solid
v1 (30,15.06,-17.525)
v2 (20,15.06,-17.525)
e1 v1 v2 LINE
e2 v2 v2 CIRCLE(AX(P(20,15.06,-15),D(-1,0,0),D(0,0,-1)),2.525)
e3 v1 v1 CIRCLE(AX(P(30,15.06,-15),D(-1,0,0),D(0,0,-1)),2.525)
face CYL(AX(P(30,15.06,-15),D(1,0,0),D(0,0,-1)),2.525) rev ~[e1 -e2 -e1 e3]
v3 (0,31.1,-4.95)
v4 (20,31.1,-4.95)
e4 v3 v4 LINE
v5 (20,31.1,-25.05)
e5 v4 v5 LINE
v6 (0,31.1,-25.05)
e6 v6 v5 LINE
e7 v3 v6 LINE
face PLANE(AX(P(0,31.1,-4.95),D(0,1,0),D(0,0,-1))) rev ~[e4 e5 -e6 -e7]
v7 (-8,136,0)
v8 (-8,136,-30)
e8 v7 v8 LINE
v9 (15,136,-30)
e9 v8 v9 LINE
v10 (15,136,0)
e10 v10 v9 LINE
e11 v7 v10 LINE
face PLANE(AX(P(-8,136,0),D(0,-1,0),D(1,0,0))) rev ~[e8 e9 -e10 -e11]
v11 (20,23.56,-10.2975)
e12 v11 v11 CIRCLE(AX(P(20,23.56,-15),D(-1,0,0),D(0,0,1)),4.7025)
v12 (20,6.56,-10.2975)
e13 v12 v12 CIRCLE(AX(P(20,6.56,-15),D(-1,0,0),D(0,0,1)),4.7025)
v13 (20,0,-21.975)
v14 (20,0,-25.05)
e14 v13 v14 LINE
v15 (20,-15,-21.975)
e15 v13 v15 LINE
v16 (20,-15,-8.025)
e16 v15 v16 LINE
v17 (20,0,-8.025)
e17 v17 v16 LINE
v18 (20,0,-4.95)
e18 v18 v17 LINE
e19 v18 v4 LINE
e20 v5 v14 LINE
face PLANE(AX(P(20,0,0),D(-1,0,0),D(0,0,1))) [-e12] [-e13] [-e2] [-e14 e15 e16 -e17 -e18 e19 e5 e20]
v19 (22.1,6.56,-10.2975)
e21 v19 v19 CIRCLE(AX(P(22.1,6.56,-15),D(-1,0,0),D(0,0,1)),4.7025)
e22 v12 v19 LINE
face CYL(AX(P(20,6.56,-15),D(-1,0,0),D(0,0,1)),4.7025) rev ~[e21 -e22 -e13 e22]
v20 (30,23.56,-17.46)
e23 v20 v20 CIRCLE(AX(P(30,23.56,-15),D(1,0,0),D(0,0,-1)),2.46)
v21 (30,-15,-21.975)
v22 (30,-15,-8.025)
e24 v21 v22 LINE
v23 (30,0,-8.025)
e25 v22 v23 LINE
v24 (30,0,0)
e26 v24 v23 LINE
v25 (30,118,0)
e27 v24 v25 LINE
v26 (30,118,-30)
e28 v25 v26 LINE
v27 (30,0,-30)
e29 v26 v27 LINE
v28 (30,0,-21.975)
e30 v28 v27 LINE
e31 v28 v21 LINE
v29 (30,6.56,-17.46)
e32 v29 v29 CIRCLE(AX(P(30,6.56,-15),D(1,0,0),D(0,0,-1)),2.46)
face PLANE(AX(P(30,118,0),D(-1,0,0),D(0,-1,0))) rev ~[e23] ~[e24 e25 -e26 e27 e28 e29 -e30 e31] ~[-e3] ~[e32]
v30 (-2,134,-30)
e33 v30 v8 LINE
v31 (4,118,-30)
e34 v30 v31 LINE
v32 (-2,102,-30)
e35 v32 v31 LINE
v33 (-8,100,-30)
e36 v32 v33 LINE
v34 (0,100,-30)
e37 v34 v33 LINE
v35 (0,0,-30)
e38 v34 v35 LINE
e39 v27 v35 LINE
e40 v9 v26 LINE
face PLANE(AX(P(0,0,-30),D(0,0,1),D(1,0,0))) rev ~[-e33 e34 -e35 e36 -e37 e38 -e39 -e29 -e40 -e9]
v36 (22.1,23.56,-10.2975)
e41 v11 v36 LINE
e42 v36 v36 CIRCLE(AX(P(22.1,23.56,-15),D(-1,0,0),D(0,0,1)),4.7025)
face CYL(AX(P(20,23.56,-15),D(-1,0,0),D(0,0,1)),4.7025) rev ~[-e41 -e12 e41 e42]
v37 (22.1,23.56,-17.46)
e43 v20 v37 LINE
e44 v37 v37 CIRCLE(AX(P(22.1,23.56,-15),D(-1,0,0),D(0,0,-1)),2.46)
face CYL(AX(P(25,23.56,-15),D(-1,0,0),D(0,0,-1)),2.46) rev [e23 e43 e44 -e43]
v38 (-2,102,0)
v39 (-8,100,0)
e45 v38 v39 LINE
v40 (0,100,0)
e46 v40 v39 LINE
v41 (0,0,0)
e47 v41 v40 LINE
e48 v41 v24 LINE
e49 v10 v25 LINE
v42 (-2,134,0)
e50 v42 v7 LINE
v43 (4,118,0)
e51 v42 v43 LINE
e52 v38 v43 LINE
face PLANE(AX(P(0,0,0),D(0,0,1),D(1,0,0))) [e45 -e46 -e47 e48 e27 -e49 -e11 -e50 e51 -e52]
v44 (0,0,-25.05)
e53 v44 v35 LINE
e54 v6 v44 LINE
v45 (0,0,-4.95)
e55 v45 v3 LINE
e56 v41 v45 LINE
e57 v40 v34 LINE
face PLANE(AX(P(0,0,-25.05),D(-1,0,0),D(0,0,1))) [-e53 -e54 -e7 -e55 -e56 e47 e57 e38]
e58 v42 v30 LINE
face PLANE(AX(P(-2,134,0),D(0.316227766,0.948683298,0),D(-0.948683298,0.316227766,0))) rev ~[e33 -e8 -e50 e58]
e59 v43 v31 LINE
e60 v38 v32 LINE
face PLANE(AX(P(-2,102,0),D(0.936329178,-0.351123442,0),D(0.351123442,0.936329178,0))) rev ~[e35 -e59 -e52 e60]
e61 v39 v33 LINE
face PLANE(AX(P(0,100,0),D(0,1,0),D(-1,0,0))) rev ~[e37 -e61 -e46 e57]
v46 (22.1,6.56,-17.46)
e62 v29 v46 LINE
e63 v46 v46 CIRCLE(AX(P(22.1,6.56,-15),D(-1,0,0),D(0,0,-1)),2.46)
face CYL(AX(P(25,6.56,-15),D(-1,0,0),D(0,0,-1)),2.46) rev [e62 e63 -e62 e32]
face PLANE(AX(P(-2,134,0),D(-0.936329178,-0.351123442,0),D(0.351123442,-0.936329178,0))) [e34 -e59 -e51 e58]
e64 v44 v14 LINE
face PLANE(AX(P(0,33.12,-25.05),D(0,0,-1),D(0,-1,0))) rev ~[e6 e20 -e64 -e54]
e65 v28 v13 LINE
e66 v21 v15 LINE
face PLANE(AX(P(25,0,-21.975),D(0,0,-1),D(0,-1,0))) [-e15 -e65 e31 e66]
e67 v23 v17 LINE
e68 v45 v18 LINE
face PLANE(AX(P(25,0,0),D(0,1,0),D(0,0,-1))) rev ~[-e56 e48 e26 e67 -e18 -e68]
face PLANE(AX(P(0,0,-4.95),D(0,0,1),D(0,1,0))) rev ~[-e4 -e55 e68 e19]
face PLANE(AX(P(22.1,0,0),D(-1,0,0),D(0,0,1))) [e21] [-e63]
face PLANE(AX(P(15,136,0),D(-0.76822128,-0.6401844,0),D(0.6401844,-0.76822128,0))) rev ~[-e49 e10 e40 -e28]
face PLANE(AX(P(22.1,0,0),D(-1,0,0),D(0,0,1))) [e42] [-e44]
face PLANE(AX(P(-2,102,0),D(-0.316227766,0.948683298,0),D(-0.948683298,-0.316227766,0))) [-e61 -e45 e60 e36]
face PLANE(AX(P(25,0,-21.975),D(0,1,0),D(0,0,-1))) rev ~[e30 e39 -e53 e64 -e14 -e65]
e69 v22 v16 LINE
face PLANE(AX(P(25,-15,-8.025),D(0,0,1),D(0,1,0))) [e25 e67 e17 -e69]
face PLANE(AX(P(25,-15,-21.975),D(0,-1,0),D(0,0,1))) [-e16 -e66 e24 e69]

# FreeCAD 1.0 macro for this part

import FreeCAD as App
import Part
import Sketcher
from FreeCAD import Vector

doc = App.newDocument("Part")
body = doc.addObject("PartDesign::Body", "Body")

# Sketch on XY plane
sketch1 = body.newObject("Sketcher::SketchObject", "Sketch")
sketch1.AttachmentSupport = (doc.getObject("XY_Plane"), [""])
sketch1.MapMode = "FlatFace"
sketch1.addGeometry([
    Part.LineSegment(Vector(0, 40, 0), Vector(0, 0, 0)),
    Part.LineSegment(Vector(0, 0, 0), Vector(25, 0, 0)),
    Part.LineSegment(Vector(25, 0, 0), Vector(25, 40, 0)),
    Part.LineSegment(Vector(25, 40, 0), Vector(0, 40, 0)),
], False)
sketch1.addConstraint([
    Sketcher.Constraint("Coincident", 0, 2, 1, 1),
    Sketcher.Constraint("Coincident", 1, 2, 2, 1),
    Sketcher.Constraint("Coincident", 2, 2, 3, 1),
    Sketcher.Constraint("Coincident", 3, 2, 0, 1),
    Sketcher.Constraint("Vertical", 0),
    Sketcher.Constraint("Horizontal", 1),
    Sketcher.Constraint("Vertical", 2),
    Sketcher.Constraint("Horizontal", 3),
    Sketcher.Constraint("Coincident", 0, 2, -1, 1),
    Sketcher.Constraint("DistanceX", 1, 1, 1, 2, 25.0),
    Sketcher.Constraint("DistanceY", 0, 2, 0, 1, 40.0),
])
pad1 = body.newObject("PartDesign::Pad", "Pad")
pad1.Profile = sketch1
pad1.Length = 30
pad1.Reversed = True

# Sketch on YZ plane
sketch2 = body.newObject("Sketcher::SketchObject", "Sketch001")
sketch2.AttachmentSupport = (doc.getObject("YZ_Plane"), [""])
sketch2.MapMode = "FlatFace"
sketch2.AttachmentOffset = App.Placement(Vector(0, 0, 25), App.Rotation())
sketch2.addGeometry(Part.Circle(Vector(6.56, -15, 0), Vector(0, 0, 1), 2.46), False)
sketch2.addConstraint([
    Sketcher.Constraint("Diameter", 0, 4.92),
    Sketcher.Constraint("DistanceY", 0, 3, -1, 1, 15.0),
    Sketcher.Constraint("DistanceX", -1, 1, 0, 3, 6.56),
])
pocket1 = body.newObject("PartDesign::Pocket", "Pocket")
pocket1.Profile = sketch2
pocket1.Length = 30

# Sketch on YZ plane
sketch3 = body.newObject("Sketcher::SketchObject", "Sketch002")
sketch3.AttachmentSupport = (doc.getObject("YZ_Plane"), [""])
sketch3.MapMode = "FlatFace"
sketch3.addGeometry([
    Part.LineSegment(Vector(0, -25.05, 0), Vector(0, -4.95, 0)),
    Part.LineSegment(Vector(0, -4.95, 0), Vector(33.12, -4.95, 0)),
    Part.LineSegment(Vector(33.12, -4.95, 0), Vector(33.12, -25.05, 0)),
    Part.LineSegment(Vector(33.12, -25.05, 0), Vector(0, -25.05, 0)),
], False)
sketch3.addConstraint([
    Sketcher.Constraint("Coincident", 0, 2, 1, 1),
    Sketcher.Constraint("Coincident", 1, 2, 2, 1),
    Sketcher.Constraint("Coincident", 2, 2, 3, 1),
    Sketcher.Constraint("Coincident", 3, 2, 0, 1),
    Sketcher.Constraint("Vertical", 0),
    Sketcher.Constraint("Horizontal", 1),
    Sketcher.Constraint("Vertical", 2),
    Sketcher.Constraint("Horizontal", 3),
    Sketcher.Constraint("PointOnObject", 0, 2, -2),
    Sketcher.Constraint("DistanceY", 0, 1, 0, 2, 20.1),
    Sketcher.Constraint("DistanceX", 1, 1, 1, 2, 33.12),
    Sketcher.Constraint("DistanceY", 0, 2, -1, 1, 4.95),
])
pocket2 = body.newObject("PartDesign::Pocket", "Pocket001")
pocket2.Profile = sketch3
pocket2.Length = 20
pocket2.Reversed = True

# Sketch on XZ plane
sketch4 = body.newObject("Sketcher::SketchObject", "Sketch003")
sketch4.AttachmentSupport = (doc.getObject("XZ_Plane"), [""])
sketch4.MapMode = "FlatFace"
sketch4.addGeometry([
    Part.LineSegment(Vector(25, -8.025, 0), Vector(20, -8.025, 0)),
    Part.LineSegment(Vector(20, -8.025, 0), Vector(20, -21.975, 0)),
    Part.LineSegment(Vector(20, -21.975, 0), Vector(25, -21.975, 0)),
    Part.LineSegment(Vector(25, -21.975, 0), Vector(25, -8.025, 0)),
], False)
sketch4.addConstraint([
    Sketcher.Constraint("Coincident", 0, 2, 1, 1),
    Sketcher.Constraint("Coincident", 1, 2, 2, 1),
    Sketcher.Constraint("Coincident", 2, 2, 3, 1),
    Sketcher.Constraint("Coincident", 3, 2, 0, 1),
    Sketcher.Constraint("Horizontal", 0),
    Sketcher.Constraint("Vertical", 1),
    Sketcher.Constraint("Horizontal", 2),
    Sketcher.Constraint("Vertical", 3),
    Sketcher.Constraint("DistanceY", 1, 2, 1, 1, 13.95),
    Sketcher.Constraint("DistanceX", 0, 2, 0, 1, 5.0),
    Sketcher.Constraint("DistanceX", -1, 1, 0, 2, 20.0),
    Sketcher.Constraint("DistanceY", 0, 2, -1, 1, 8.025),
])
pad2 = body.newObject("PartDesign::Pad", "Pad001")
pad2.Profile = sketch4
pad2.Length = 15

# Sketch on YZ plane
sketch5 = body.newObject("Sketcher::SketchObject", "Sketch004")
sketch5.AttachmentSupport = (doc.getObject("YZ_Plane"), [""])
sketch5.MapMode = "FlatFace"
sketch5.AttachmentOffset = App.Placement(Vector(0, 0, 20), App.Rotation())
sketch5.addGeometry([
    Part.Circle(Vector(6.56, -15, 0), Vector(0, 0, 1), 4.7025),
    Part.Circle(Vector(6.56, -15, 0), Vector(0, 0, 1), 2.46),
], False)
sketch5.addConstraint([
    Sketcher.Constraint("Coincident", 1, 3, 0, 3),
    Sketcher.Constraint("Diameter", 0, 9.405),
    Sketcher.Constraint("Diameter", 1, 4.92),
    Sketcher.Constraint("DistanceY", 0, 3, -1, 1, 15.0),
    Sketcher.Constraint("DistanceX", -1, 1, 0, 3, 6.56),
])
pocket3 = body.newObject("PartDesign::Pocket", "Pocket002")
pocket3.Profile = sketch5
pocket3.Length = 2.1
pocket3.Reversed = True

# Sketch on YZ plane
sketch6 = body.newObject("Sketcher::SketchObject", "Sketch005")
sketch6.AttachmentSupport = (doc.getObject("YZ_Plane"), [""])
sketch6.MapMode = "FlatFace"
sketch6.AttachmentOffset = App.Placement(Vector(0, 0, 25), App.Rotation())
sketch6.addGeometry(Part.Circle(Vector(23.56, -15, 0), Vector(0, 0, 1), 2.46), False)
sketch6.addConstraint([
    Sketcher.Constraint("Diameter", 0, 4.92),
    Sketcher.Constraint("DistanceY", 0, 3, -1, 1, 15.0),
    Sketcher.Constraint("DistanceX", -1, 1, 0, 3, 23.56),
])
pocket4 = body.newObject("PartDesign::Pocket", "Pocket003")
pocket4.Profile = sketch6
pocket4.Length = 10

# Sketch on YZ plane
sketch7 = body.newObject("Sketcher::SketchObject", "Sketch006")
sketch7.AttachmentSupport = (doc.getObject("YZ_Plane"), [""])
sketch7.MapMode = "FlatFace"
sketch7.AttachmentOffset = App.Placement(Vector(0, 0, 20), App.Rotation())
sketch7.addGeometry([
    Part.Circle(Vector(23.56, -15, 0), Vector(0, 0, 1), 4.7025),
    Part.Circle(Vector(23.56, -15, 0), Vector(0, 0, 1), 2.46),
], False)
sketch7.addConstraint([
    Sketcher.Constraint("Coincident", 1, 3, 0, 3),
    Sketcher.Constraint("Diameter", 0, 9.405),
    Sketcher.Constraint("Diameter", 1, 4.92),
    Sketcher.Constraint("DistanceY", 0, 3, -1, 1, 15.0),
    Sketcher.Constraint("DistanceX", -1, 1, 0, 3, 23.56),
])
pocket5 = body.newObject("PartDesign::Pocket", "Pocket004")
pocket5.Profile = sketch7
pocket5.Length = 2.1
pocket5.Reversed = True

# Sketch on YZ plane
sketch8 = body.newObject("Sketcher::SketchObject", "Sketch007")
sketch8.AttachmentSupport = (doc.getObject("YZ_Plane"), [""])
sketch8.MapMode = "FlatFace"
sketch8.AttachmentOffset = App.Placement(Vector(0, 0, 25), App.Rotation())
sketch8.addGeometry([
    Part.LineSegment(Vector(0, -30, 0), Vector(40, -30, 0)),  # 0
    Part.LineSegment(Vector(40, -30, 0), Vector(40, 0, 0)),  # 1
    Part.LineSegment(Vector(40, 0, 0), Vector(0, 0, 0)),  # 2
    Part.LineSegment(Vector(0, 0, 0), Vector(0, -8.025, 0)),  # 3
    Part.LineSegment(Vector(0, -8.025, 0), Vector(-15, -8.025, 0)),  # 4
    Part.LineSegment(Vector(-15, -8.025, 0), Vector(-15, -21.975, 0)),  # 5
    Part.LineSegment(Vector(-15, -21.975, 0), Vector(0, -21.975, 0)),  # 6
    Part.LineSegment(Vector(0, -21.975, 0), Vector(0, -30, 0)),  # 7
    Part.Circle(Vector(6.56, -15, 0), Vector(0, 0, 1), 2.46),  # 8
    Part.Circle(Vector(23.56, -15, 0), Vector(0, 0, 1), 2.46),  # 9
], False)
sketch8.addConstraint([
    Sketcher.Constraint("Coincident", 0, 2, 1, 1),
    Sketcher.Constraint("Coincident", 1, 2, 2, 1),
    Sketcher.Constraint("Coincident", 2, 2, 3, 1),
    Sketcher.Constraint("Coincident", 3, 2, 4, 1),
    Sketcher.Constraint("Coincident", 4, 2, 5, 1),
    Sketcher.Constraint("Coincident", 5, 2, 6, 1),
    Sketcher.Constraint("Coincident", 6, 2, 7, 1),
    Sketcher.Constraint("Coincident", 7, 2, 0, 1),
    Sketcher.Constraint("Horizontal", 0),
    Sketcher.Constraint("Vertical", 1),
    Sketcher.Constraint("Horizontal", 2),
    Sketcher.Constraint("Vertical", 3),
    Sketcher.Constraint("Horizontal", 4),
    Sketcher.Constraint("Vertical", 5),
    Sketcher.Constraint("Horizontal", 6),
    Sketcher.Constraint("Vertical", 7),
    Sketcher.Constraint("Coincident", 2, 2, -1, 1),
    Sketcher.Constraint("Equal", 8, 9),
    Sketcher.Constraint("PointOnObject", 6, 2, -2),
    Sketcher.Constraint("Horizontal", 8, 3, 9, 3),
    Sketcher.Constraint("Equal", 3, 7),
    Sketcher.Constraint("Diameter", 8, 4.92),
    Sketcher.Constraint("DistanceX", 0, 1, 0, 2, 40.0),
    Sketcher.Constraint("DistanceX", 4, 2, 4, 1, 15.0),
    Sketcher.Constraint("DistanceY", 1, 1, 1, 2, 30.0),
    Sketcher.Constraint("DistanceY", 8, 3, -1, 1, 15.0),
    Sketcher.Constraint("DistanceX", 8, 3, 9, 3, 17.0),
    Sketcher.Constraint("DistanceY", 5, 2, 5, 1, 13.95),
    Sketcher.Constraint("DistanceX", -1, 1, 8, 3, 6.56),
])
pad3 = body.newObject("PartDesign::Pad", "Pad002")
pad3.Profile = sketch8
pad3.Length = 5

# Sketch on XZ plane
sketch9 = body.newObject("Sketcher::SketchObject", "Sketch008")
sketch9.AttachmentSupport = (doc.getObject("XZ_Plane"), [""])
sketch9.MapMode = "FlatFace"
sketch9.AttachmentOffset = App.Placement(Vector(0, 0, -40), App.Rotation())
sketch9.addGeometry([
    Part.LineSegment(Vector(30, -30, 0), Vector(0, -30, 0)),
    Part.LineSegment(Vector(0, -30, 0), Vector(0, 0, 0)),
    Part.LineSegment(Vector(0, 0, 0), Vector(30, 0, 0)),
    Part.LineSegment(Vector(30, 0, 0), Vector(30, -30, 0)),
], False)
sketch9.addConstraint([
    Sketcher.Constraint("Coincident", 0, 2, 1, 1),
    Sketcher.Constraint("Coincident", 1, 2, 2, 1),
    Sketcher.Constraint("Coincident", 2, 2, 3, 1),
    Sketcher.Constraint("Coincident", 3, 2, 0, 1),
    Sketcher.Constraint("Horizontal", 0),
    Sketcher.Constraint("Vertical", 1),
    Sketcher.Constraint("Horizontal", 2),
    Sketcher.Constraint("Vertical", 3),
    Sketcher.Constraint("Coincident", 1, 2, -1, 1),
    Sketcher.Constraint("Equal", 2, 1),
    Sketcher.Constraint("DistanceX", 0, 2, 0, 1, 30.0),
])
pad4 = body.newObject("PartDesign::Pad", "Pad003")
pad4.Profile = sketch9
pad4.Length = 30
pad4.Reversed = True

# Sketch on YZ plane
sketch10 = body.newObject("Sketcher::SketchObject", "Sketch009")
sketch10.AttachmentSupport = (doc.getObject("YZ_Plane"), [""])
sketch10.MapMode = "FlatFace"
sketch10.AttachmentOffset = App.Placement(Vector(0, 0, 30), App.Rotation())
sketch10.addGeometry(Part.Circle(Vector(15.06, -15, 0), Vector(0, 0, 1), 2.525), False)
sketch10.addConstraint([
    Sketcher.Constraint("Diameter", 0, 5.05),
    Sketcher.Constraint("DistanceY", 0, 3, -1, 1, 15.0),
    Sketcher.Constraint("DistanceX", -1, 1, 0, 3, 15.06),
])
pocket6 = body.newObject("PartDesign::Pocket", "Pocket005")
pocket6.Profile = sketch10
pocket6.Length = 30

# Sketch on XY plane
sketch11 = body.newObject("Sketcher::SketchObject", "Sketch010")
sketch11.AttachmentSupport = (doc.getObject("XY_Plane"), [""])
sketch11.MapMode = "FlatFace"
sketch11.addGeometry([
    Part.LineSegment(Vector(0, 70, 0), Vector(30, 70, 0)),  # 0
    Part.LineSegment(Vector(30, 70, 0), Vector(30, 118, 0)),  # 1
    Part.LineSegment(Vector(30, 118, 0), Vector(15, 136, 0)),  # 2
    Part.LineSegment(Vector(15, 136, 0), Vector(-8, 136, 0)),  # 3
    Part.LineSegment(Vector(-8, 136, 0), Vector(-2, 134, 0)),  # 4
    Part.LineSegment(Vector(-2, 134, 0), Vector(4, 118, 0)),  # 5
    Part.LineSegment(Vector(4, 118, 0), Vector(-2, 102, 0)),  # 6
    Part.LineSegment(Vector(-2, 102, 0), Vector(-8, 100, 0)),  # 7
    Part.LineSegment(Vector(-8, 100, 0), Vector(0, 100, 0)),  # 8
    Part.LineSegment(Vector(0, 100, 0), Vector(0, 70, 0)),  # 9
], False)
sketch11.addConstraint([
    Sketcher.Constraint("Coincident", 0, 2, 1, 1),
    Sketcher.Constraint("Coincident", 1, 2, 2, 1),
    Sketcher.Constraint("Coincident", 2, 2, 3, 1),
    Sketcher.Constraint("Coincident", 3, 2, 4, 1),
    Sketcher.Constraint("Coincident", 4, 2, 5, 1),
    Sketcher.Constraint("Coincident", 5, 2, 6, 1),
    Sketcher.Constraint("Coincident", 6, 2, 7, 1),
    Sketcher.Constraint("Coincident", 7, 2, 8, 1),
    Sketcher.Constraint("Coincident", 8, 2, 9, 1),
    Sketcher.Constraint("Coincident", 9, 2, 0, 1),
    Sketcher.Constraint("Horizontal", 0),
    Sketcher.Constraint("Vertical", 1),
    Sketcher.Constraint("Horizontal", 3),
    Sketcher.Constraint("Horizontal", 8),
    Sketcher.Constraint("Vertical", 9),
    Sketcher.Constraint("PointOnObject", 8, 2, -2),
    Sketcher.Constraint("Horizontal", 1, 2, 5, 2),
    Sketcher.Constraint("Vertical", 4, 2, 6, 2),
    Sketcher.Constraint("Vertical", 3, 2, 7, 2),
    Sketcher.Constraint("Equal", 0, 9),
    Sketcher.Constraint("Equal", 5, 6),
    Sketcher.Constraint("Equal", 4, 7),
    Sketcher.Constraint("DistanceX", 0, 1, 0, 2, 30.0),
    Sketcher.Constraint("DistanceX", 3, 2, 3, 1, 23.0),
    Sketcher.Constraint("DistanceX", 8, 1, 8, 2, 8.0),
    Sketcher.Constraint("DistanceY", 1, 1, 1, 2, 48.0),
    Sketcher.Constraint("DistanceY", -1, 1, 0, 2, 70.0),
    Sketcher.Constraint("DistanceX", 4, 2, -1, 1, 2.0),
    Sketcher.Constraint("DistanceY", -1, 1, 4, 2, 134.0),
    Sketcher.Constraint("DistanceX", -1, 1, 5, 2, 4.0),
])
pad5 = body.newObject("PartDesign::Pad", "Pad004")
pad5.Profile = sketch11
pad5.Length = 30
pad5.Reversed = True

# Sketch on YZ plane
sketch12 = body.newObject("Sketcher::SketchObject", "Sketch011")
sketch12.AttachmentSupport = (doc.getObject("YZ_Plane"), [""])
sketch12.MapMode = "FlatFace"
sketch12.addGeometry([
    Part.LineSegment(Vector(33.12, -4.95, 0), Vector(33.12, -25.05, 0)),
    Part.LineSegment(Vector(33.12, -25.05, 0), Vector(31.1, -25.05, 0)),
    Part.LineSegment(Vector(31.1, -25.05, 0), Vector(31.1, -4.95, 0)),
    Part.LineSegment(Vector(31.1, -4.95, 0), Vector(33.12, -4.95, 0)),
], False)
sketch12.addConstraint([
    Sketcher.Constraint("Coincident", 0, 2, 1, 1),
    Sketcher.Constraint("Coincident", 1, 2, 2, 1),
    Sketcher.Constraint("Coincident", 2, 2, 3, 1),
    Sketcher.Constraint("Coincident", 3, 2, 0, 1),
    Sketcher.Constraint("Vertical", 0),
    Sketcher.Constraint("Horizontal", 1),
    Sketcher.Constraint("Vertical", 2),
    Sketcher.Constraint("Horizontal", 3),
    Sketcher.Constraint("DistanceX", 1, 2, 1, 1, 2.02),
    Sketcher.Constraint("DistanceY", 0, 2, 0, 1, 20.1),
    Sketcher.Constraint("DistanceX", -1, 1, 1, 2, 31.1),
    Sketcher.Constraint("DistanceY", 0, 2, -1, 1, 25.05),
])
pad6 = body.newObject("PartDesign::Pad", "Pad005")
pad6.Profile = sketch12
pad6.Length = 20

doc.recompute()
